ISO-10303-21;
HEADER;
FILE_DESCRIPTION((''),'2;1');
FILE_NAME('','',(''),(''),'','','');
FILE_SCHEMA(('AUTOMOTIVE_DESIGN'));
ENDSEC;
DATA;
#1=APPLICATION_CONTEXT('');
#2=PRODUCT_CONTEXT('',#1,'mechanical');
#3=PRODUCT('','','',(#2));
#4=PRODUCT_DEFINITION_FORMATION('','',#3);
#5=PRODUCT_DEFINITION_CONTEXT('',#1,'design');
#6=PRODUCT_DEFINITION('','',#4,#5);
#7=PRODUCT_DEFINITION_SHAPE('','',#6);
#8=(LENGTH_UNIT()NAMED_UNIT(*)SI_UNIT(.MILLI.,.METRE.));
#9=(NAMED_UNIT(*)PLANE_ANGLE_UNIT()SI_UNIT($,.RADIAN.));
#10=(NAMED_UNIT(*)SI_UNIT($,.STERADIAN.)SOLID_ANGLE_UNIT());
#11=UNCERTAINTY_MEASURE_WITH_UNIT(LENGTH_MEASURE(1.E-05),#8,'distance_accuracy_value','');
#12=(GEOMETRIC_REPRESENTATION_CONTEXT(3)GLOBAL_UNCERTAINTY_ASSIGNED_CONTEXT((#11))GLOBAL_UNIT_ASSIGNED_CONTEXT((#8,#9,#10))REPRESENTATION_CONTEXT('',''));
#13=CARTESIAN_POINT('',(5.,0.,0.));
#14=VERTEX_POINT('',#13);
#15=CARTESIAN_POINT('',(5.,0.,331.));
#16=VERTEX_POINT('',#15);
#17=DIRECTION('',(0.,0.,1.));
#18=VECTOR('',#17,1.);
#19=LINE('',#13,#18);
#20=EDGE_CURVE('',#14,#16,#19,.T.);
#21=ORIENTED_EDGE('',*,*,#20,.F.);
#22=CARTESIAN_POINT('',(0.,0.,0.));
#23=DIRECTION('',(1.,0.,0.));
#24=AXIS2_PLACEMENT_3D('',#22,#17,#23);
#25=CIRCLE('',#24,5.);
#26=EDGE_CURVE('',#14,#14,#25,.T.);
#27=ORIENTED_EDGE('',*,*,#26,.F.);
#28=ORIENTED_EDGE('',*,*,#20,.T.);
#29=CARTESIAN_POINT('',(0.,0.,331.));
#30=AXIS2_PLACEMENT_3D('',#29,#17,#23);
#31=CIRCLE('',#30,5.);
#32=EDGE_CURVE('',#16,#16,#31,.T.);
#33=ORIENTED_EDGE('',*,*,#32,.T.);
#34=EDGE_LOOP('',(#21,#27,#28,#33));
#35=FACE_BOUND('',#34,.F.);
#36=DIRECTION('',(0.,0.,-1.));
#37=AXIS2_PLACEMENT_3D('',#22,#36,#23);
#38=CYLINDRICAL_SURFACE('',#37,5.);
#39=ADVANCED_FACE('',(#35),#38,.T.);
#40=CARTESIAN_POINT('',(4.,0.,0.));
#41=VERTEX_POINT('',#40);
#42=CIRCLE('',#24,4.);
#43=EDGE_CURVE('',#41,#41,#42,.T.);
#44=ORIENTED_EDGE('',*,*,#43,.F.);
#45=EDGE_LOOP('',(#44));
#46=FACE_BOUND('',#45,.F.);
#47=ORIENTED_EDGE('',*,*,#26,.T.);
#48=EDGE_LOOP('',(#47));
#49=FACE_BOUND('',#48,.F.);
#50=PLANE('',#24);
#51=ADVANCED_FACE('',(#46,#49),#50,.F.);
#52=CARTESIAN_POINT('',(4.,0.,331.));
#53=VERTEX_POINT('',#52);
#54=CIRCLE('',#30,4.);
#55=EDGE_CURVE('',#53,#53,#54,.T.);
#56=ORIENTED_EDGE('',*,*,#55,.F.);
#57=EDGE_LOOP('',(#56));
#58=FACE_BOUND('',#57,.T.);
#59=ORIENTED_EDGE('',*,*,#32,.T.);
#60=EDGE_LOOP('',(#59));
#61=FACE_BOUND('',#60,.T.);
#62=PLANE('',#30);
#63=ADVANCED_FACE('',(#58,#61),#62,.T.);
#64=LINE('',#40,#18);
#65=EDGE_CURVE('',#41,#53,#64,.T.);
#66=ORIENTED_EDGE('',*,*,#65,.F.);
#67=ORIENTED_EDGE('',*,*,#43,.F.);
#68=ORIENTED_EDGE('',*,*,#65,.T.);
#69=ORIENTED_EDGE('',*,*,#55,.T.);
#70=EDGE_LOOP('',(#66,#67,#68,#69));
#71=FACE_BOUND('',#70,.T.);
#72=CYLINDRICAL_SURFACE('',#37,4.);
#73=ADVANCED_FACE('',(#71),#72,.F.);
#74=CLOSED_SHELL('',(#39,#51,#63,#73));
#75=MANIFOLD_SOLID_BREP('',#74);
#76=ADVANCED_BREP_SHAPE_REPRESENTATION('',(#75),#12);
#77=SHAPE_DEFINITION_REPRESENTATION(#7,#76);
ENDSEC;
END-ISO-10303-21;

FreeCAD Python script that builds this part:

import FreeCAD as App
import Part
import Sketcher
from FreeCAD import Vector

doc = App.newDocument("Part")
body = doc.addObject("PartDesign::Body", "Body")

# Sketch on XY plane
sketch1 = body.newObject("Sketcher::SketchObject", "Sketch")
sketch1.AttachmentSupport = (doc.getObject("XY_Plane"), [""])
sketch1.MapMode = "FlatFace"
sketch1.addGeometry([
    Part.Circle(Vector(0, 0, 0), Vector(0, 0, 1), 5),
    Part.Circle(Vector(0, 0, 0), Vector(0, 0, 1), 4),
], False)
sketch1.addConstraint([
    Sketcher.Constraint("Coincident", 0, 3, -1, 1),
    Sketcher.Constraint("Coincident", 1, 3, -1, 1),
    Sketcher.Constraint("Diameter", 0, 10.0),
    Sketcher.Constraint("Diameter", 1, 8.0),
])
pad1 = body.newObject("PartDesign::Pad", "Pad")
pad1.Profile = sketch1
pad1.Length = 331

doc.recompute()
